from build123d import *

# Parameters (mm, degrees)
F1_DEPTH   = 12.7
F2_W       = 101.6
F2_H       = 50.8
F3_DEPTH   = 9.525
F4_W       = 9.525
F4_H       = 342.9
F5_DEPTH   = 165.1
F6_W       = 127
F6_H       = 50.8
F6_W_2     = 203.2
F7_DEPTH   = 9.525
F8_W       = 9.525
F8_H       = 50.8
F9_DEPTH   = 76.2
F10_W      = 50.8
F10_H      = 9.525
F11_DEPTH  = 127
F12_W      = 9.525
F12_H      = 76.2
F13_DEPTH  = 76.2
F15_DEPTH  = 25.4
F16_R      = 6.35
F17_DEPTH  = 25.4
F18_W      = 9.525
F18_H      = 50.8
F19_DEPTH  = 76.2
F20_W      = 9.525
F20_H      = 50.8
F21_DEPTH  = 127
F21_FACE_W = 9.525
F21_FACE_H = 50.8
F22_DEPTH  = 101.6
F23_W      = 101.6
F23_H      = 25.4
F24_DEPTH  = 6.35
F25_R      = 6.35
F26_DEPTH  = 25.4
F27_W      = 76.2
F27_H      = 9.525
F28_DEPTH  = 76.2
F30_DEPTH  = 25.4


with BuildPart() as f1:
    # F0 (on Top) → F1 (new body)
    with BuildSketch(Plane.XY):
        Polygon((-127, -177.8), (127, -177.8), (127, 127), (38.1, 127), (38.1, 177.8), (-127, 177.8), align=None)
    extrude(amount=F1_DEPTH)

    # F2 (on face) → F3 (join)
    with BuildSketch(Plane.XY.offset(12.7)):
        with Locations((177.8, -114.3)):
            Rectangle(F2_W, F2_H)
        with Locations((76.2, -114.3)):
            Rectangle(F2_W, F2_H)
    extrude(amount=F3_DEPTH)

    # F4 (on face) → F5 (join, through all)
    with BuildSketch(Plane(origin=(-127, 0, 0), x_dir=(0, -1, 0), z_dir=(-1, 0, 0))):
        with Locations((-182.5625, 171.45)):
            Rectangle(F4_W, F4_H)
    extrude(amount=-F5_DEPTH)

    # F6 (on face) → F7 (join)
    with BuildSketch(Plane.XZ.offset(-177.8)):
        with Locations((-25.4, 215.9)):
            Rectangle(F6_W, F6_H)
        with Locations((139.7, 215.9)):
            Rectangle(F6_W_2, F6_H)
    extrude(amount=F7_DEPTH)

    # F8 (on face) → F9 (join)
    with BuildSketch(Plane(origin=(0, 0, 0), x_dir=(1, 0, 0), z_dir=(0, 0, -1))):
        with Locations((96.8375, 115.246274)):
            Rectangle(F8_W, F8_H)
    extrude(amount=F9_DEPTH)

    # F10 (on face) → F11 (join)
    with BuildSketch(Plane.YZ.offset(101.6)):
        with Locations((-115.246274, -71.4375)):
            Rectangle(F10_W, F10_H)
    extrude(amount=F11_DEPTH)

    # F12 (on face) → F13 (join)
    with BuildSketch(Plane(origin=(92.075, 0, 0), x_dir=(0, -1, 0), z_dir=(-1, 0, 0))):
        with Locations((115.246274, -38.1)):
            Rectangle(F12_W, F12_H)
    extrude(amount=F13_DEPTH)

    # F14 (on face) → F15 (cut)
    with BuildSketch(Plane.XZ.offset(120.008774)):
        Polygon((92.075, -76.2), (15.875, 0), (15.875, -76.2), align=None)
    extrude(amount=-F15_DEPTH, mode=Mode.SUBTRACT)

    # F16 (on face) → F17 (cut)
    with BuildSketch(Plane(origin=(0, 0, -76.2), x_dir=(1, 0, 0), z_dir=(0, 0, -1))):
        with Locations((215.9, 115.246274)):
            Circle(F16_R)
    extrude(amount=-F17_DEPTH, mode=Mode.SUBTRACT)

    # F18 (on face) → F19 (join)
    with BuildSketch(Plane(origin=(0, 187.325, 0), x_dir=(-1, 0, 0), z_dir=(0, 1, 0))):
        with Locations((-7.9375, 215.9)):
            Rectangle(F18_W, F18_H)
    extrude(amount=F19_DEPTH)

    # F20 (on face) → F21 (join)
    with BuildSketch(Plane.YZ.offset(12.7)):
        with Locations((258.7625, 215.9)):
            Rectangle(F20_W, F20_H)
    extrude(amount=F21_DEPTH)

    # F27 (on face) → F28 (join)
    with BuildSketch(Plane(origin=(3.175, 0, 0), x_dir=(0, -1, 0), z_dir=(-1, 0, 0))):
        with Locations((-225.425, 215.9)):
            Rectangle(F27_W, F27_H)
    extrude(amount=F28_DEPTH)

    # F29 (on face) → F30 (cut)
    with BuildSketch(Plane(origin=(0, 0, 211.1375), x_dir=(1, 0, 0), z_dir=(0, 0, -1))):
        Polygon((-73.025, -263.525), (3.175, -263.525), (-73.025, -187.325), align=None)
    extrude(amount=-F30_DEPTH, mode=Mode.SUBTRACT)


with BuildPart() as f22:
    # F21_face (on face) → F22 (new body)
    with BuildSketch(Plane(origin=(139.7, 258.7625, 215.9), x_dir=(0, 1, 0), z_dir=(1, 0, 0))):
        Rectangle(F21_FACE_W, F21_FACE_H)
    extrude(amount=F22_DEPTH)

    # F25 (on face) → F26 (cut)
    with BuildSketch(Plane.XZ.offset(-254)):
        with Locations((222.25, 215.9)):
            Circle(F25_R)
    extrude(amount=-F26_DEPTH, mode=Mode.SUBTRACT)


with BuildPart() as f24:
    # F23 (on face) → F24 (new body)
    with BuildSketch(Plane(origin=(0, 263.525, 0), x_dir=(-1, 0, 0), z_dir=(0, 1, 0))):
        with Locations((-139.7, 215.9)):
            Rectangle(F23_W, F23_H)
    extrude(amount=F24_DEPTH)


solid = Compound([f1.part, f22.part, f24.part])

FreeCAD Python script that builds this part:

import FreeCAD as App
import Part
import Sketcher
Q = App.Units.Quantity

doc = App.newDocument("Part")
body = doc.addObject("PartDesign::Body", "Body")

# Sketch on XY plane
sketch1 = body.newObject("Sketcher::SketchObject", "Sketch")
sketch1.AttachmentSupport = (doc.getObject("XY_Plane"), [""])
sketch1.MapMode = "FlatFace"
sketch1.addGeometry([
    Part.LineSegment(App.Vector(-127, -177.8, 0), App.Vector(127, -177.8, 0)),  # 0
    Part.LineSegment(App.Vector(127, -177.8, 0), App.Vector(127, 127, 0)),  # 1
    Part.LineSegment(App.Vector(127, 127, 0), App.Vector(38.1, 127, 0)),  # 2
    Part.LineSegment(App.Vector(38.1, 127, 0), App.Vector(38.1, 177.8, 0)),  # 3
    Part.LineSegment(App.Vector(38.1, 177.8, 0), App.Vector(-127, 177.8, 0)),  # 4
    Part.LineSegment(App.Vector(-127, 177.8, 0), App.Vector(-127, -177.8, 0)),  # 5
], False)
sketch1.addConstraint([
    Sketcher.Constraint("Coincident", 0, 2, 1, 1),
    Sketcher.Constraint("Coincident", 1, 2, 2, 1),
    Sketcher.Constraint("Coincident", 2, 2, 3, 1),
    Sketcher.Constraint("Coincident", 3, 2, 4, 1),
    Sketcher.Constraint("Coincident", 4, 2, 5, 1),
    Sketcher.Constraint("Coincident", 5, 2, 0, 1),
    Sketcher.Constraint("Horizontal", 0),
    Sketcher.Constraint("Vertical", 1),
    Sketcher.Constraint("Horizontal", 2),
    Sketcher.Constraint("Vertical", 3),
    Sketcher.Constraint("Horizontal", 4),
    Sketcher.Constraint("Vertical", 5),
    Sketcher.Constraint("Symmetric", 0, 2, 4, 2, -1, 1),
    Sketcher.Constraint("DistanceX", 0, 1, 0, 2, Q("10 in")),
    Sketcher.Constraint("DistanceY", 1, 1, 1, 2, Q("12 in")),
    Sketcher.Constraint("DistanceY", 3, 1, 3, 2, Q("2 in")),
    Sketcher.Constraint("DistanceX", 2, 2, 2, 1, Q("3.5 in")),
])
pad1 = body.newObject("PartDesign::Pad", "Pad")
pad1.Profile = sketch1
pad1.Length = Q("0.5 in")

# Sketch on XY plane
sketch2 = body.newObject("Sketcher::SketchObject", "Sketch001")
sketch2.AttachmentSupport = (doc.getObject("XY_Plane"), [""])
sketch2.MapMode = "FlatFace"
sketch2.AttachmentOffset = App.Placement(App.Vector(0, 0, 0.5 * 25.4), App.Rotation())
sketch2.addGeometry([
    Part.LineSegment(App.Vector(228.6, -139.7, 0), App.Vector(228.6, -88.9, 0)),
    Part.LineSegment(App.Vector(228.6, -88.9, 0), App.Vector(25.4, -88.9, 0)),
    Part.LineSegment(App.Vector(25.4, -88.9, 0), App.Vector(25.4, -139.7, 0)),
    Part.LineSegment(App.Vector(25.4, -139.7, 0), App.Vector(228.6, -139.7, 0)),
], False)
sketch2.addConstraint([
    Sketcher.Constraint("Coincident", 0, 2, 1, 1),
    Sketcher.Constraint("Coincident", 1, 2, 2, 1),
    Sketcher.Constraint("Coincident", 2, 2, 3, 1),
    Sketcher.Constraint("Coincident", 3, 2, 0, 1),
    Sketcher.Constraint("Vertical", 0),
    Sketcher.Constraint("Horizontal", 1),
    Sketcher.Constraint("Vertical", 2),
    Sketcher.Constraint("Horizontal", 3),
    Sketcher.Constraint("DistanceX", 1, 2, 1, 1, Q("8 in")),
    Sketcher.Constraint("DistanceY", 0, 1, 0, 2, Q("2 in")),
    Sketcher.Constraint("DistanceX", -1, 1, 0, 2, Q("9 in")),
    Sketcher.Constraint("DistanceY", 0, 2, -1, 1, Q("3.5 in")),
])
pad2 = body.newObject("PartDesign::Pad", "Pad001")
pad2.Profile = sketch2
pad2.Length = Q("0.375 in")

# Sketch on YZ plane
sketch3 = body.newObject("Sketcher::SketchObject", "Sketch002")
sketch3.AttachmentSupport = (doc.getObject("YZ_Plane"), [""])
sketch3.MapMode = "FlatFace"
sketch3.AttachmentOffset = App.Placement(App.Vector(0, 0, -5 * 25.4), App.Rotation())
sketch3.addGeometry([
    Part.LineSegment(App.Vector(187.325, 342.9, 0), App.Vector(187.325, 0, 0)),
    Part.LineSegment(App.Vector(187.325, 0, 0), App.Vector(177.8, 0, 0)),
    Part.LineSegment(App.Vector(177.8, 0, 0), App.Vector(177.8, 342.9, 0)),
    Part.LineSegment(App.Vector(177.8, 342.9, 0), App.Vector(187.325, 342.9, 0)),
], False)
sketch3.addConstraint([
    Sketcher.Constraint("Coincident", 0, 2, 1, 1),
    Sketcher.Constraint("Coincident", 1, 2, 2, 1),
    Sketcher.Constraint("Coincident", 2, 2, 3, 1),
    Sketcher.Constraint("Coincident", 3, 2, 0, 1),
    Sketcher.Constraint("Vertical", 0),
    Sketcher.Constraint("Horizontal", 1),
    Sketcher.Constraint("Vertical", 2),
    Sketcher.Constraint("Horizontal", 3),
    Sketcher.Constraint("PointOnObject", 0, 2, -1),
    Sketcher.Constraint("DistanceY", 0, 2, 0, 1, Q("13.5 in")),
    Sketcher.Constraint("DistanceX", -1, 1, 1, 2, Q("7 in")),
    Sketcher.Constraint("DistanceX", 1, 2, 1, 1, Q("0.375 in")),
])
pad3 = body.newObject("PartDesign::Pad", "Pad002")
pad3.Profile = sketch3
pad3.Length = Q("6.5 in")

# Sketch on XZ plane
sketch4 = body.newObject("Sketcher::SketchObject", "Sketch003")
sketch4.AttachmentSupport = (doc.getObject("XZ_Plane"), [""])
sketch4.MapMode = "FlatFace"
sketch4.AttachmentOffset = App.Placement(App.Vector(0, 0, -7 * 25.4), App.Rotation())
sketch4.addGeometry([
    Part.LineSegment(App.Vector(-88.9, 241.3, 0), App.Vector(-88.9, 190.5, 0)),
    Part.LineSegment(App.Vector(-88.9, 190.5, 0), App.Vector(241.3, 190.5, 0)),
    Part.LineSegment(App.Vector(241.3, 190.5, 0), App.Vector(241.3, 241.3, 0)),
    Part.LineSegment(App.Vector(241.3, 241.3, 0), App.Vector(-88.9, 241.3, 0)),
], False)
sketch4.addConstraint([
    Sketcher.Constraint("Coincident", 0, 2, 1, 1),
    Sketcher.Constraint("Coincident", 1, 2, 2, 1),
    Sketcher.Constraint("Coincident", 2, 2, 3, 1),
    Sketcher.Constraint("Coincident", 3, 2, 0, 1),
    Sketcher.Constraint("Vertical", 0),
    Sketcher.Constraint("Horizontal", 1),
    Sketcher.Constraint("Vertical", 2),
    Sketcher.Constraint("Horizontal", 3),
    Sketcher.Constraint("DistanceX", 1, 1, 1, 2, Q("13 in")),
    Sketcher.Constraint("DistanceY", 0, 2, 0, 1, Q("2 in")),
    Sketcher.Constraint("DistanceX", 0, 2, -1, 1, Q("3.5 in")),
    Sketcher.Constraint("DistanceY", -1, 1, 0, 2, Q("7.5 in")),
])
pad4 = body.newObject("PartDesign::Pad", "Pad003")
pad4.Profile = sketch4
pad4.Length = Q("0.375 in")

# Sketch on XY plane
sketch5 = body.newObject("Sketcher::SketchObject", "Sketch004")
sketch5.AttachmentSupport = (doc.getObject("XY_Plane"), [""])
sketch5.MapMode = "FlatFace"
sketch5.addGeometry([
    Part.LineSegment(App.Vector(92.075, -140.646274, 0), App.Vector(92.075, -89.846274, 0)),
    Part.LineSegment(App.Vector(92.075, -89.846274, 0), App.Vector(101.6, -89.846274, 0)),
    Part.LineSegment(App.Vector(101.6, -89.846274, 0), App.Vector(101.6, -140.646274, 0)),
    Part.LineSegment(App.Vector(101.6, -140.646274, 0), App.Vector(92.075, -140.646274, 0)),
], False)
sketch5.addConstraint([
    Sketcher.Constraint("Coincident", 0, 2, 1, 1),
    Sketcher.Constraint("Coincident", 1, 2, 2, 1),
    Sketcher.Constraint("Coincident", 2, 2, 3, 1),
    Sketcher.Constraint("Coincident", 3, 2, 0, 1),
    Sketcher.Constraint("Vertical", 0),
    Sketcher.Constraint("Horizontal", 1),
    Sketcher.Constraint("Vertical", 2),
    Sketcher.Constraint("Horizontal", 3),
    Sketcher.Constraint("DistanceY", 0, 1, 0, 2, Q("2 in")),
    Sketcher.Constraint("DistanceX", -1, 1, 1, 2, Q("4 in")),
    Sketcher.Constraint("DistanceX", 1, 1, 1, 2, Q("0.375 in")),
    Sketcher.Constraint("DistanceY", 0, 2, -1, 1, 89.846274),
])
pad5 = body.newObject("PartDesign::Pad", "Pad004")
pad5.Profile = sketch5
pad5.Length = Q("3 in")
pad5.Reversed = True

# Sketch on YZ plane
sketch6 = body.newObject("Sketcher::SketchObject", "Sketch005")
sketch6.AttachmentSupport = (doc.getObject("YZ_Plane"), [""])
sketch6.MapMode = "FlatFace"
sketch6.AttachmentOffset = App.Placement(App.Vector(0, 0, 4 * 25.4), App.Rotation())
sketch6.addGeometry([
    Part.LineSegment(App.Vector(-140.646274, -66.675, 0), App.Vector(-140.646274, -76.2, 0)),
    Part.LineSegment(App.Vector(-140.646274, -76.2, 0), App.Vector(-89.846274, -76.2, 0)),
    Part.LineSegment(App.Vector(-89.846274, -76.2, 0), App.Vector(-89.846274, -66.675, 0)),
    Part.LineSegment(App.Vector(-89.846274, -66.675, 0), App.Vector(-140.646274, -66.675, 0)),
], False)
sketch6.addConstraint([
    Sketcher.Constraint("Coincident", 0, 2, 1, 1),
    Sketcher.Constraint("Coincident", 1, 2, 2, 1),
    Sketcher.Constraint("Coincident", 2, 2, 3, 1),
    Sketcher.Constraint("Coincident", 3, 2, 0, 1),
    Sketcher.Constraint("Vertical", 0),
    Sketcher.Constraint("Horizontal", 1),
    Sketcher.Constraint("Vertical", 2),
    Sketcher.Constraint("Horizontal", 3),
    Sketcher.Constraint("DistanceX", 1, 1, 1, 2, Q("2 in")),
    Sketcher.Constraint("DistanceY", 0, 2, -1, 1, Q("3 in")),
    Sketcher.Constraint("DistanceY", 0, 2, 0, 1, Q("0.375 in")),
    Sketcher.Constraint("DistanceX", 0, 2, -1, 1, 140.646274),
])
pad6 = body.newObject("PartDesign::Pad", "Pad005")
pad6.Profile = sketch6
pad6.Length = Q("5 in")

# Sketch on YZ plane
sketch7 = body.newObject("Sketcher::SketchObject", "Sketch006")
sketch7.AttachmentSupport = (doc.getObject("YZ_Plane"), [""])
sketch7.MapMode = "FlatFace"
sketch7.AttachmentOffset = App.Placement(App.Vector(0, 0, 3.625 * 25.4), App.Rotation())
sketch7.addGeometry([
    Part.LineSegment(App.Vector(-110.483774, 0, 0), App.Vector(-110.483774, -76.2, 0)),
    Part.LineSegment(App.Vector(-110.483774, -76.2, 0), App.Vector(-120.008774, -76.2, 0)),
    Part.LineSegment(App.Vector(-120.008774, -76.2, 0), App.Vector(-120.008774, 0, 0)),
    Part.LineSegment(App.Vector(-120.008774, 0, 0), App.Vector(-110.483774, 0, 0)),
], False)
sketch7.addConstraint([
    Sketcher.Constraint("Coincident", 0, 2, 1, 1),
    Sketcher.Constraint("Coincident", 1, 2, 2, 1),
    Sketcher.Constraint("Coincident", 2, 2, 3, 1),
    Sketcher.Constraint("Coincident", 3, 2, 0, 1),
    Sketcher.Constraint("Vertical", 0),
    Sketcher.Constraint("Horizontal", 1),
    Sketcher.Constraint("Vertical", 2),
    Sketcher.Constraint("Horizontal", 3),
    Sketcher.Constraint("PointOnObject", 2, 2, -1),
    Sketcher.Constraint("DistanceY", 0, 2, 0, 1, Q("3 in")),
    Sketcher.Constraint("DistanceX", 1, 2, 1, 1, Q("0.375 in")),
    Sketcher.Constraint("DistanceX", 0, 2, -1, 1, 110.483774),
])
pad7 = body.newObject("PartDesign::Pad", "Pad006")
pad7.Profile = sketch7
pad7.Length = Q("3 in")
pad7.Reversed = True

# Sketch on XZ plane
sketch8 = body.newObject("Sketcher::SketchObject", "Sketch007")
sketch8.AttachmentSupport = (doc.getObject("XZ_Plane"), [""])
sketch8.MapMode = "FlatFace"
sketch8.AttachmentOffset = App.Placement(App.Vector(0, 0, 120.008774), App.Rotation())
sketch8.addGeometry([
    Part.LineSegment(App.Vector(92.075, -76.2, 0), App.Vector(15.875, 0, 0)),
    Part.LineSegment(App.Vector(15.875, 0, 0), App.Vector(15.875, -76.2, 0)),
    Part.LineSegment(App.Vector(15.875, -76.2, 0), App.Vector(92.075, -76.2, 0)),
], False)
sketch8.addConstraint([
    Sketcher.Constraint("Coincident", 0, 2, 1, 1),
    Sketcher.Constraint("Coincident", 1, 2, 2, 1),
    Sketcher.Constraint("Coincident", 2, 2, 0, 1),
    Sketcher.Constraint("Vertical", 1),
    Sketcher.Constraint("Horizontal", 2),
    Sketcher.Constraint("PointOnObject", 0, 2, -1),
    Sketcher.Constraint("Equal", 2, 1),
    Sketcher.Constraint("DistanceX", 2, 1, 2, 2, Q("3 in")),
    Sketcher.Constraint("DistanceX", -1, 1, 0, 2, Q("0.625 in")),
])
pocket1 = body.newObject("PartDesign::Pocket", "Pocket")
pocket1.Profile = sketch8
pocket1.Length = Q("1 in")

# Sketch on XY plane
sketch9 = body.newObject("Sketcher::SketchObject", "Sketch008")
sketch9.AttachmentSupport = (doc.getObject("XY_Plane"), [""])
sketch9.MapMode = "FlatFace"
sketch9.AttachmentOffset = App.Placement(App.Vector(0, 0, -3 * 25.4), App.Rotation())
sketch9.addGeometry(Part.Circle(App.Vector(215.9, -115.246274, 0), App.Vector(0, 0, 1), 6.35), False)
sketch9.addConstraint([
    Sketcher.Constraint("Diameter", 0, Q("0.5 in")),
    Sketcher.Constraint("DistanceX", -1, 1, 0, 3, Q("8.5 in")),
    Sketcher.Constraint("DistanceY", 0, 3, -1, 1, 115.246274),
])
pocket2 = body.newObject("PartDesign::Pocket", "Pocket001")
pocket2.Profile = sketch9
pocket2.Length = Q("1 in")
pocket2.Reversed = True

# Sketch on XZ plane
sketch10 = body.newObject("Sketcher::SketchObject", "Sketch009")
sketch10.AttachmentSupport = (doc.getObject("XZ_Plane"), [""])
sketch10.MapMode = "FlatFace"
sketch10.AttachmentOffset = App.Placement(App.Vector(0, 0, -7.375 * 25.4), App.Rotation())
sketch10.addGeometry([
    Part.LineSegment(App.Vector(12.7, 241.3, 0), App.Vector(12.7, 190.5, 0)),
    Part.LineSegment(App.Vector(12.7, 190.5, 0), App.Vector(3.175, 190.5, 0)),
    Part.LineSegment(App.Vector(3.175, 190.5, 0), App.Vector(3.175, 241.3, 0)),
    Part.LineSegment(App.Vector(3.175, 241.3, 0), App.Vector(12.7, 241.3, 0)),
], False)
sketch10.addConstraint([
    Sketcher.Constraint("Coincident", 0, 2, 1, 1),
    Sketcher.Constraint("Coincident", 1, 2, 2, 1),
    Sketcher.Constraint("Coincident", 2, 2, 3, 1),
    Sketcher.Constraint("Coincident", 3, 2, 0, 1),
    Sketcher.Constraint("Vertical", 0),
    Sketcher.Constraint("Horizontal", 1),
    Sketcher.Constraint("Vertical", 2),
    Sketcher.Constraint("Horizontal", 3),
    Sketcher.Constraint("DistanceY", 0, 2, 0, 1, Q("2 in")),
    Sketcher.Constraint("DistanceX", -1, 1, 0, 2, Q("0.5 in")),
    Sketcher.Constraint("DistanceY", -1, 1, 0, 2, Q("7.5 in")),
    Sketcher.Constraint("DistanceX", 1, 2, 1, 1, Q("0.375 in")),
])
pad8 = body.newObject("PartDesign::Pad", "Pad007")
pad8.Profile = sketch10
pad8.Length = Q("3 in")
pad8.Reversed = True

# Sketch on YZ plane
sketch11 = body.newObject("Sketcher::SketchObject", "Sketch010")
sketch11.AttachmentSupport = (doc.getObject("YZ_Plane"), [""])
sketch11.MapMode = "FlatFace"
sketch11.AttachmentOffset = App.Placement(App.Vector(0, 0, 0.5 * 25.4), App.Rotation())
sketch11.addGeometry([
    Part.LineSegment(App.Vector(254, 241.3, 0), App.Vector(254, 190.5, 0)),
    Part.LineSegment(App.Vector(254, 190.5, 0), App.Vector(263.525, 190.5, 0)),
    Part.LineSegment(App.Vector(263.525, 190.5, 0), App.Vector(263.525, 241.3, 0)),
    Part.LineSegment(App.Vector(263.525, 241.3, 0), App.Vector(254, 241.3, 0)),
], False)
sketch11.addConstraint([
    Sketcher.Constraint("Coincident", 0, 2, 1, 1),
    Sketcher.Constraint("Coincident", 1, 2, 2, 1),
    Sketcher.Constraint("Coincident", 2, 2, 3, 1),
    Sketcher.Constraint("Coincident", 3, 2, 0, 1),
    Sketcher.Constraint("Vertical", 0),
    Sketcher.Constraint("Horizontal", 1),
    Sketcher.Constraint("Vertical", 2),
    Sketcher.Constraint("Horizontal", 3),
    Sketcher.Constraint("DistanceY", 0, 2, 0, 1, Q("2 in")),
    Sketcher.Constraint("DistanceX", -1, 1, 0, 2, Q("10 in")),
    Sketcher.Constraint("DistanceY", -1, 1, 0, 2, Q("7.5 in")),
    Sketcher.Constraint("DistanceX", 1, 1, 1, 2, Q("0.375 in")),
])
pad9 = body.newObject("PartDesign::Pad", "Pad008")
pad9.Profile = sketch11
pad9.Length = Q("5 in")

# Sketch on YZ plane
sketch12 = body.newObject("Sketcher::SketchObject", "Sketch011")
sketch12.AttachmentSupport = (doc.getObject("YZ_Plane"), [""])
sketch12.MapMode = "FlatFace"
sketch12.AttachmentOffset = App.Placement(App.Vector(0, 0, 0.125 * 25.4), App.Rotation())
sketch12.addGeometry([
    Part.LineSegment(App.Vector(263.525, 220.6625, 0), App.Vector(263.525, 211.1375, 0)),
    Part.LineSegment(App.Vector(263.525, 211.1375, 0), App.Vector(187.325, 211.1375, 0)),
    Part.LineSegment(App.Vector(187.325, 211.1375, 0), App.Vector(187.325, 220.6625, 0)),
    Part.LineSegment(App.Vector(187.325, 220.6625, 0), App.Vector(263.525, 220.6625, 0)),
], False)
sketch12.addConstraint([
    Sketcher.Constraint("Coincident", 0, 2, 1, 1),
    Sketcher.Constraint("Coincident", 1, 2, 2, 1),
    Sketcher.Constraint("Coincident", 2, 2, 3, 1),
    Sketcher.Constraint("Coincident", 3, 2, 0, 1),
    Sketcher.Constraint("Vertical", 0),
    Sketcher.Constraint("Horizontal", 1),
    Sketcher.Constraint("Vertical", 2),
    Sketcher.Constraint("Horizontal", 3),
    Sketcher.Constraint("DistanceX", 1, 2, 1, 1, Q("3 in")),
    Sketcher.Constraint("DistanceY", 0, 2, 0, 1, Q("0.375 in")),
    Sketcher.Constraint("DistanceX", -1, 1, 0, 2, Q("10.375 in")),
    Sketcher.Constraint("DistanceY", -1, 1, 0, 2, Q("8.3125 in")),
])
pad10 = body.newObject("PartDesign::Pad", "Pad009")
pad10.Profile = sketch12
pad10.Length = Q("3 in")
pad10.Reversed = True

# Sketch on XY plane
sketch13 = body.newObject("Sketcher::SketchObject", "Sketch012")
sketch13.AttachmentSupport = (doc.getObject("XY_Plane"), [""])
sketch13.MapMode = "FlatFace"
sketch13.AttachmentOffset = App.Placement(App.Vector(0, 0, 8.3125 * 25.4), App.Rotation())
sketch13.addGeometry([
    Part.LineSegment(App.Vector(-73.025, 263.525, 0), App.Vector(3.175, 263.525, 0)),
    Part.LineSegment(App.Vector(3.175, 263.525, 0), App.Vector(-73.025, 187.325, 0)),
    Part.LineSegment(App.Vector(-73.025, 187.325, 0), App.Vector(-73.025, 263.525, 0)),
], False)
sketch13.addConstraint([
    Sketcher.Constraint("Coincident", 0, 2, 1, 1),
    Sketcher.Constraint("Coincident", 1, 2, 2, 1),
    Sketcher.Constraint("Coincident", 2, 2, 0, 1),
    Sketcher.Constraint("Horizontal", 0),
    Sketcher.Constraint("Vertical", 2),
    Sketcher.Constraint("Equal", 0, 2),
    Sketcher.Constraint("DistanceX", 0, 1, 0, 2, Q("3 in")),
    Sketcher.Constraint("DistanceX", -1, 1, 0, 2, Q("0.125 in")),
    Sketcher.Constraint("DistanceY", -1, 1, 0, 2, Q("10.375 in")),
])
pocket3 = body.newObject("PartDesign::Pocket", "Pocket002")
pocket3.Profile = sketch13
pocket3.Length = Q("1 in")
pocket3.Reversed = True
body2 = doc.addObject("PartDesign::Body", "Body001")

# Sketch on YZ plane
sketch14 = body2.newObject("Sketcher::SketchObject", "Sketch013")
sketch14.AttachmentSupport = (doc.getObject("YZ_Plane001"), [""])
sketch14.MapMode = "FlatFace"
sketch14.AttachmentOffset = App.Placement(App.Vector(0, 0, 5.5 * 25.4), App.Rotation())
sketch14.addGeometry([
    Part.LineSegment(App.Vector(254, 241.3, 0), App.Vector(254, 190.5, 0)),
    Part.LineSegment(App.Vector(254, 190.5, 0), App.Vector(263.525, 190.5, 0)),
    Part.LineSegment(App.Vector(263.525, 190.5, 0), App.Vector(263.525, 241.3, 0)),
    Part.LineSegment(App.Vector(263.525, 241.3, 0), App.Vector(254, 241.3, 0)),
], False)
sketch14.addConstraint([
    Sketcher.Constraint("Coincident", 0, 2, 1, 1),
    Sketcher.Constraint("Coincident", 1, 2, 2, 1),
    Sketcher.Constraint("Coincident", 2, 2, 3, 1),
    Sketcher.Constraint("Coincident", 3, 2, 0, 1),
    Sketcher.Constraint("Vertical", 0),
    Sketcher.Constraint("Horizontal", 1),
    Sketcher.Constraint("Vertical", 2),
    Sketcher.Constraint("Horizontal", 3),
    Sketcher.Constraint("DistanceY", 0, 2, 0, 1, Q("2 in")),
    Sketcher.Constraint("DistanceX", -1, 1, 0, 2, Q("10 in")),
    Sketcher.Constraint("DistanceY", -1, 1, 0, 2, Q("7.5 in")),
    Sketcher.Constraint("DistanceX", 1, 1, 1, 2, Q("0.375 in")),
])
pad11 = body2.newObject("PartDesign::Pad", "Pad010")
pad11.Profile = sketch14
pad11.Length = Q("4 in")

# Sketch on XZ plane
sketch15 = body2.newObject("Sketcher::SketchObject", "Sketch014")
sketch15.AttachmentSupport = (doc.getObject("XZ_Plane001"), [""])
sketch15.MapMode = "FlatFace"
sketch15.AttachmentOffset = App.Placement(App.Vector(0, 0, -10 * 25.4), App.Rotation())
sketch15.addGeometry(Part.Circle(App.Vector(222.25, 215.9, 0), App.Vector(0, 0, 1), 6.35), False)
sketch15.addConstraint([
    Sketcher.Constraint("Diameter", 0, Q("0.5 in")),
    Sketcher.Constraint("DistanceY", -1, 1, 0, 3, Q("8.5 in")),
    Sketcher.Constraint("DistanceX", -1, 1, 0, 3, Q("8.75 in")),
])
pocket4 = body2.newObject("PartDesign::Pocket", "Pocket003")
pocket4.Profile = sketch15
pocket4.Length = Q("1 in")
body3 = doc.addObject("PartDesign::Body", "Body002")

# Sketch on XZ plane
sketch16 = body3.newObject("Sketcher::SketchObject", "Sketch015")
sketch16.AttachmentSupport = (doc.getObject("XZ_Plane002"), [""])
sketch16.MapMode = "FlatFace"
sketch16.AttachmentOffset = App.Placement(App.Vector(0, 0, -10.375 * 25.4), App.Rotation())
sketch16.addGeometry([
    Part.LineSegment(App.Vector(190.5, 228.6, 0), App.Vector(190.5, 203.2, 0)),
    Part.LineSegment(App.Vector(190.5, 203.2, 0), App.Vector(88.9, 203.2, 0)),
    Part.LineSegment(App.Vector(88.9, 203.2, 0), App.Vector(88.9, 228.6, 0)),
    Part.LineSegment(App.Vector(88.9, 228.6, 0), App.Vector(190.5, 228.6, 0)),
], False)
sketch16.addConstraint([
    Sketcher.Constraint("Coincident", 0, 2, 1, 1),
    Sketcher.Constraint("Coincident", 1, 2, 2, 1),
    Sketcher.Constraint("Coincident", 2, 2, 3, 1),
    Sketcher.Constraint("Coincident", 3, 2, 0, 1),
    Sketcher.Constraint("Vertical", 0),
    Sketcher.Constraint("Horizontal", 1),
    Sketcher.Constraint("Vertical", 2),
    Sketcher.Constraint("Horizontal", 3),
    Sketcher.Constraint("DistanceX", 1, 2, 1, 1, Q("4 in")),
    Sketcher.Constraint("DistanceY", 0, 2, 0, 1, Q("1 in")),
    Sketcher.Constraint("DistanceY", -1, 1, 0, 2, Q("8 in")),
    Sketcher.Constraint("DistanceX", -1, 1, 0, 2, Q("7.5 in")),
])
pad12 = body3.newObject("PartDesign::Pad", "Pad011")
pad12.Profile = sketch16
pad12.Length = Q("0.25 in")
pad12.Reversed = True

doc.recompute()
